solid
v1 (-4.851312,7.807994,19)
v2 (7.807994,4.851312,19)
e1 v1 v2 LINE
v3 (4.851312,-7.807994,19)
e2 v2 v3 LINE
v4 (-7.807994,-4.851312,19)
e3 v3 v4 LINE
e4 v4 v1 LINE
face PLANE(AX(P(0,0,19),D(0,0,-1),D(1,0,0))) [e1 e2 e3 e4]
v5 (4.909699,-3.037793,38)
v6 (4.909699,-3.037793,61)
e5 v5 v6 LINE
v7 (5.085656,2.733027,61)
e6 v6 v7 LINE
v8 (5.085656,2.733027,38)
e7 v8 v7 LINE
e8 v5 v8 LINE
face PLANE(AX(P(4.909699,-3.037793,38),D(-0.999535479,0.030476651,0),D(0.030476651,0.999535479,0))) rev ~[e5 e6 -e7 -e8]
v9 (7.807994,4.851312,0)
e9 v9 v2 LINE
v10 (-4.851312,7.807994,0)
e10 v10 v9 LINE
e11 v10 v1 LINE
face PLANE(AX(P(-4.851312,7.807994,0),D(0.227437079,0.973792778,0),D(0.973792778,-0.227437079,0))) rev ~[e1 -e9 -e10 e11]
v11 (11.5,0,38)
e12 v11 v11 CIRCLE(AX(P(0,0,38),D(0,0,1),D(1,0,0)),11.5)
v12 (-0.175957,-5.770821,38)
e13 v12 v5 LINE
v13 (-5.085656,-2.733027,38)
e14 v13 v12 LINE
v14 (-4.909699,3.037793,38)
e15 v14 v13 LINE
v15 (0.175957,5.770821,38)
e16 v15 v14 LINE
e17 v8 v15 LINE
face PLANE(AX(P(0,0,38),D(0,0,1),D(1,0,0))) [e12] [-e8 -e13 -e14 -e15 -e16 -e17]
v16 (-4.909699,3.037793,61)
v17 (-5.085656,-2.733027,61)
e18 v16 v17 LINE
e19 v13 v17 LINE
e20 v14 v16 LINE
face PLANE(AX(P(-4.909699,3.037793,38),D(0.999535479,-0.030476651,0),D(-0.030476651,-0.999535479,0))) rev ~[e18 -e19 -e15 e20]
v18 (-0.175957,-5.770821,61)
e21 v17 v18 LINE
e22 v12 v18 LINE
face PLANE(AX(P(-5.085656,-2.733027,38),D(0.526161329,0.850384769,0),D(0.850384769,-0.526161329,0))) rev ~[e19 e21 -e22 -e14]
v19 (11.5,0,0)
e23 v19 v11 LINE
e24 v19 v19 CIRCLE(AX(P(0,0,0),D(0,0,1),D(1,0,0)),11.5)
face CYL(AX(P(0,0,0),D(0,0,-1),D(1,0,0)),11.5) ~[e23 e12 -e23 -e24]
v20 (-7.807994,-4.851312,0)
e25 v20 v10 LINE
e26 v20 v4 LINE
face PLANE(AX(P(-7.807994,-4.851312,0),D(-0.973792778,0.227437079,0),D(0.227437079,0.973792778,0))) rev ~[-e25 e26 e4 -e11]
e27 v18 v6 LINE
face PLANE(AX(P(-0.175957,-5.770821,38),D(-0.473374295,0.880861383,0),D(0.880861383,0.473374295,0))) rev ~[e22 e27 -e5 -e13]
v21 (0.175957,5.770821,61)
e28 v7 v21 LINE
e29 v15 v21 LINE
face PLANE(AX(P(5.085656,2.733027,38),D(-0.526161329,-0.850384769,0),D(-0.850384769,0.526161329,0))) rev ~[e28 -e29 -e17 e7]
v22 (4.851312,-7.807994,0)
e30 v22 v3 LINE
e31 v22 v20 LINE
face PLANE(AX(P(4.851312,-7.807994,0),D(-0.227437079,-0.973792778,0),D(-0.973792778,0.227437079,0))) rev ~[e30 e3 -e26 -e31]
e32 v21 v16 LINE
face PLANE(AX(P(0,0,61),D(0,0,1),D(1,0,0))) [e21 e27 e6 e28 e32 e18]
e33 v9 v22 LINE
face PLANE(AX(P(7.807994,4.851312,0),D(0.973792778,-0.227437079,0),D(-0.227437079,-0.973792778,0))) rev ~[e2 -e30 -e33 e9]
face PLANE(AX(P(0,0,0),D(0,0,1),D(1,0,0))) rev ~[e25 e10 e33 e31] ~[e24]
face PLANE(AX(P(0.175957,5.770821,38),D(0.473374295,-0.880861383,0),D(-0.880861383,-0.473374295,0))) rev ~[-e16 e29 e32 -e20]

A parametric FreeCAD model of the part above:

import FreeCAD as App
import Part
import Sketcher
from FreeCAD import Vector


def add_polygon(sketch, points):
    """Adds a closed chain of lines whose ends are joined by coincident constraints."""
    first, n = sketch.GeometryCount, len(points)
    for a, b in zip(points, points[1:] + points[:1]):
        sketch.addGeometry(Part.LineSegment(App.Vector(*a, 0), App.Vector(*b, 0)), False)
    for i in range(n):
        sketch.addConstraint(Sketcher.Constraint("Coincident", first + i, 2, first + (i + 1) % n, 1))

doc = App.newDocument("Part")
body = doc.addObject("PartDesign::Body", "Body")

sketch1 = doc.addObject("Sketcher::SketchObject", "Sketch")
body.addObject(sketch1)
sketch1.AttachmentSupport = (doc.XY_Plane, [""])
sketch1.MapMode = "FlatFace"
sketch1.addGeometry(Part.Circle(Vector(0, 0, 0), Vector(0, 0, 1), 12), False)
sketch1.addConstraint([
    Sketcher.Constraint("Coincident", 0, 3, -1, 1),
    Sketcher.Constraint("Diameter", 0, 23.0),
])
pad1 = doc.addObject("PartDesign::Pad", "Pad")
body.addObject(pad1)
pad1.Profile = sketch1
pad1.Length = 38

sketch2 = doc.addObject("Sketcher::SketchObject", "Sketch001")
body.addObject(sketch2)
sketch2.AttachmentSupport = (doc.XY_Plane, [""])
sketch2.MapMode = "FlatFace"
sketch2.AttachmentOffset = App.Placement(Vector(0, 0, 38), App.Rotation())
add_polygon(sketch2, [(5, 3), (0, 6), (-5, 3), (-5, -3), (0, -6), (5, -3)])
sketch2.addConstraint([
    Sketcher.Constraint("Symmetric", 0, 2, 3, 2, -1, 1),
    Sketcher.Constraint("Symmetric", 1, 2, 4, 2, -1, 1),
    Sketcher.Constraint("Symmetric", 2, 2, 5, 2, -1, 1),
    Sketcher.Constraint("Equal", 0, 1),
    Sketcher.Constraint("Equal", 1, 2),
    Sketcher.Constraint("Distance", 2, 5.773502),
    Sketcher.Constraint("DistanceX", 1, 2, -1, 1, 4.909699),
    Sketcher.Constraint("DistanceX", 2, 2, 3, 2, 4.909699),
    Sketcher.Constraint("DistanceY", -1, 1, 0, 2, 5.770821),
])
pad2 = doc.addObject("PartDesign::Pad", "Pad001")
body.addObject(pad2)
pad2.Profile = sketch2
pad2.Length = 23

sketch3 = doc.addObject("Sketcher::SketchObject", "Sketch002")
body.addObject(sketch3)
sketch3.AttachmentSupport = (doc.XY_Plane, [""])
sketch3.MapMode = "FlatFace"
add_polygon(sketch3, [(8, 5), (5, -8), (-8, -5), (-5, 8)])
sketch3.addConstraint([
    Sketcher.Constraint("Symmetric", 0, 2, 2, 2, -1, 1),
    Sketcher.Constraint("Symmetric", 1, 2, 3, 2, -1, 1),
    Sketcher.Constraint("Perpendicular", 0, 1),
    Sketcher.Constraint("Equal", 0, 1),
    Sketcher.Constraint("Distance", 0, 13.0),
    Sketcher.Constraint("DistanceY", 0, 2, 1, 2, 2.956682),
])
pocket1 = doc.addObject("PartDesign::Pocket", "Pocket")
body.addObject(pocket1)
pocket1.Profile = sketch3
pocket1.Length = 19
pocket1.Reversed = True

doc.recompute()
